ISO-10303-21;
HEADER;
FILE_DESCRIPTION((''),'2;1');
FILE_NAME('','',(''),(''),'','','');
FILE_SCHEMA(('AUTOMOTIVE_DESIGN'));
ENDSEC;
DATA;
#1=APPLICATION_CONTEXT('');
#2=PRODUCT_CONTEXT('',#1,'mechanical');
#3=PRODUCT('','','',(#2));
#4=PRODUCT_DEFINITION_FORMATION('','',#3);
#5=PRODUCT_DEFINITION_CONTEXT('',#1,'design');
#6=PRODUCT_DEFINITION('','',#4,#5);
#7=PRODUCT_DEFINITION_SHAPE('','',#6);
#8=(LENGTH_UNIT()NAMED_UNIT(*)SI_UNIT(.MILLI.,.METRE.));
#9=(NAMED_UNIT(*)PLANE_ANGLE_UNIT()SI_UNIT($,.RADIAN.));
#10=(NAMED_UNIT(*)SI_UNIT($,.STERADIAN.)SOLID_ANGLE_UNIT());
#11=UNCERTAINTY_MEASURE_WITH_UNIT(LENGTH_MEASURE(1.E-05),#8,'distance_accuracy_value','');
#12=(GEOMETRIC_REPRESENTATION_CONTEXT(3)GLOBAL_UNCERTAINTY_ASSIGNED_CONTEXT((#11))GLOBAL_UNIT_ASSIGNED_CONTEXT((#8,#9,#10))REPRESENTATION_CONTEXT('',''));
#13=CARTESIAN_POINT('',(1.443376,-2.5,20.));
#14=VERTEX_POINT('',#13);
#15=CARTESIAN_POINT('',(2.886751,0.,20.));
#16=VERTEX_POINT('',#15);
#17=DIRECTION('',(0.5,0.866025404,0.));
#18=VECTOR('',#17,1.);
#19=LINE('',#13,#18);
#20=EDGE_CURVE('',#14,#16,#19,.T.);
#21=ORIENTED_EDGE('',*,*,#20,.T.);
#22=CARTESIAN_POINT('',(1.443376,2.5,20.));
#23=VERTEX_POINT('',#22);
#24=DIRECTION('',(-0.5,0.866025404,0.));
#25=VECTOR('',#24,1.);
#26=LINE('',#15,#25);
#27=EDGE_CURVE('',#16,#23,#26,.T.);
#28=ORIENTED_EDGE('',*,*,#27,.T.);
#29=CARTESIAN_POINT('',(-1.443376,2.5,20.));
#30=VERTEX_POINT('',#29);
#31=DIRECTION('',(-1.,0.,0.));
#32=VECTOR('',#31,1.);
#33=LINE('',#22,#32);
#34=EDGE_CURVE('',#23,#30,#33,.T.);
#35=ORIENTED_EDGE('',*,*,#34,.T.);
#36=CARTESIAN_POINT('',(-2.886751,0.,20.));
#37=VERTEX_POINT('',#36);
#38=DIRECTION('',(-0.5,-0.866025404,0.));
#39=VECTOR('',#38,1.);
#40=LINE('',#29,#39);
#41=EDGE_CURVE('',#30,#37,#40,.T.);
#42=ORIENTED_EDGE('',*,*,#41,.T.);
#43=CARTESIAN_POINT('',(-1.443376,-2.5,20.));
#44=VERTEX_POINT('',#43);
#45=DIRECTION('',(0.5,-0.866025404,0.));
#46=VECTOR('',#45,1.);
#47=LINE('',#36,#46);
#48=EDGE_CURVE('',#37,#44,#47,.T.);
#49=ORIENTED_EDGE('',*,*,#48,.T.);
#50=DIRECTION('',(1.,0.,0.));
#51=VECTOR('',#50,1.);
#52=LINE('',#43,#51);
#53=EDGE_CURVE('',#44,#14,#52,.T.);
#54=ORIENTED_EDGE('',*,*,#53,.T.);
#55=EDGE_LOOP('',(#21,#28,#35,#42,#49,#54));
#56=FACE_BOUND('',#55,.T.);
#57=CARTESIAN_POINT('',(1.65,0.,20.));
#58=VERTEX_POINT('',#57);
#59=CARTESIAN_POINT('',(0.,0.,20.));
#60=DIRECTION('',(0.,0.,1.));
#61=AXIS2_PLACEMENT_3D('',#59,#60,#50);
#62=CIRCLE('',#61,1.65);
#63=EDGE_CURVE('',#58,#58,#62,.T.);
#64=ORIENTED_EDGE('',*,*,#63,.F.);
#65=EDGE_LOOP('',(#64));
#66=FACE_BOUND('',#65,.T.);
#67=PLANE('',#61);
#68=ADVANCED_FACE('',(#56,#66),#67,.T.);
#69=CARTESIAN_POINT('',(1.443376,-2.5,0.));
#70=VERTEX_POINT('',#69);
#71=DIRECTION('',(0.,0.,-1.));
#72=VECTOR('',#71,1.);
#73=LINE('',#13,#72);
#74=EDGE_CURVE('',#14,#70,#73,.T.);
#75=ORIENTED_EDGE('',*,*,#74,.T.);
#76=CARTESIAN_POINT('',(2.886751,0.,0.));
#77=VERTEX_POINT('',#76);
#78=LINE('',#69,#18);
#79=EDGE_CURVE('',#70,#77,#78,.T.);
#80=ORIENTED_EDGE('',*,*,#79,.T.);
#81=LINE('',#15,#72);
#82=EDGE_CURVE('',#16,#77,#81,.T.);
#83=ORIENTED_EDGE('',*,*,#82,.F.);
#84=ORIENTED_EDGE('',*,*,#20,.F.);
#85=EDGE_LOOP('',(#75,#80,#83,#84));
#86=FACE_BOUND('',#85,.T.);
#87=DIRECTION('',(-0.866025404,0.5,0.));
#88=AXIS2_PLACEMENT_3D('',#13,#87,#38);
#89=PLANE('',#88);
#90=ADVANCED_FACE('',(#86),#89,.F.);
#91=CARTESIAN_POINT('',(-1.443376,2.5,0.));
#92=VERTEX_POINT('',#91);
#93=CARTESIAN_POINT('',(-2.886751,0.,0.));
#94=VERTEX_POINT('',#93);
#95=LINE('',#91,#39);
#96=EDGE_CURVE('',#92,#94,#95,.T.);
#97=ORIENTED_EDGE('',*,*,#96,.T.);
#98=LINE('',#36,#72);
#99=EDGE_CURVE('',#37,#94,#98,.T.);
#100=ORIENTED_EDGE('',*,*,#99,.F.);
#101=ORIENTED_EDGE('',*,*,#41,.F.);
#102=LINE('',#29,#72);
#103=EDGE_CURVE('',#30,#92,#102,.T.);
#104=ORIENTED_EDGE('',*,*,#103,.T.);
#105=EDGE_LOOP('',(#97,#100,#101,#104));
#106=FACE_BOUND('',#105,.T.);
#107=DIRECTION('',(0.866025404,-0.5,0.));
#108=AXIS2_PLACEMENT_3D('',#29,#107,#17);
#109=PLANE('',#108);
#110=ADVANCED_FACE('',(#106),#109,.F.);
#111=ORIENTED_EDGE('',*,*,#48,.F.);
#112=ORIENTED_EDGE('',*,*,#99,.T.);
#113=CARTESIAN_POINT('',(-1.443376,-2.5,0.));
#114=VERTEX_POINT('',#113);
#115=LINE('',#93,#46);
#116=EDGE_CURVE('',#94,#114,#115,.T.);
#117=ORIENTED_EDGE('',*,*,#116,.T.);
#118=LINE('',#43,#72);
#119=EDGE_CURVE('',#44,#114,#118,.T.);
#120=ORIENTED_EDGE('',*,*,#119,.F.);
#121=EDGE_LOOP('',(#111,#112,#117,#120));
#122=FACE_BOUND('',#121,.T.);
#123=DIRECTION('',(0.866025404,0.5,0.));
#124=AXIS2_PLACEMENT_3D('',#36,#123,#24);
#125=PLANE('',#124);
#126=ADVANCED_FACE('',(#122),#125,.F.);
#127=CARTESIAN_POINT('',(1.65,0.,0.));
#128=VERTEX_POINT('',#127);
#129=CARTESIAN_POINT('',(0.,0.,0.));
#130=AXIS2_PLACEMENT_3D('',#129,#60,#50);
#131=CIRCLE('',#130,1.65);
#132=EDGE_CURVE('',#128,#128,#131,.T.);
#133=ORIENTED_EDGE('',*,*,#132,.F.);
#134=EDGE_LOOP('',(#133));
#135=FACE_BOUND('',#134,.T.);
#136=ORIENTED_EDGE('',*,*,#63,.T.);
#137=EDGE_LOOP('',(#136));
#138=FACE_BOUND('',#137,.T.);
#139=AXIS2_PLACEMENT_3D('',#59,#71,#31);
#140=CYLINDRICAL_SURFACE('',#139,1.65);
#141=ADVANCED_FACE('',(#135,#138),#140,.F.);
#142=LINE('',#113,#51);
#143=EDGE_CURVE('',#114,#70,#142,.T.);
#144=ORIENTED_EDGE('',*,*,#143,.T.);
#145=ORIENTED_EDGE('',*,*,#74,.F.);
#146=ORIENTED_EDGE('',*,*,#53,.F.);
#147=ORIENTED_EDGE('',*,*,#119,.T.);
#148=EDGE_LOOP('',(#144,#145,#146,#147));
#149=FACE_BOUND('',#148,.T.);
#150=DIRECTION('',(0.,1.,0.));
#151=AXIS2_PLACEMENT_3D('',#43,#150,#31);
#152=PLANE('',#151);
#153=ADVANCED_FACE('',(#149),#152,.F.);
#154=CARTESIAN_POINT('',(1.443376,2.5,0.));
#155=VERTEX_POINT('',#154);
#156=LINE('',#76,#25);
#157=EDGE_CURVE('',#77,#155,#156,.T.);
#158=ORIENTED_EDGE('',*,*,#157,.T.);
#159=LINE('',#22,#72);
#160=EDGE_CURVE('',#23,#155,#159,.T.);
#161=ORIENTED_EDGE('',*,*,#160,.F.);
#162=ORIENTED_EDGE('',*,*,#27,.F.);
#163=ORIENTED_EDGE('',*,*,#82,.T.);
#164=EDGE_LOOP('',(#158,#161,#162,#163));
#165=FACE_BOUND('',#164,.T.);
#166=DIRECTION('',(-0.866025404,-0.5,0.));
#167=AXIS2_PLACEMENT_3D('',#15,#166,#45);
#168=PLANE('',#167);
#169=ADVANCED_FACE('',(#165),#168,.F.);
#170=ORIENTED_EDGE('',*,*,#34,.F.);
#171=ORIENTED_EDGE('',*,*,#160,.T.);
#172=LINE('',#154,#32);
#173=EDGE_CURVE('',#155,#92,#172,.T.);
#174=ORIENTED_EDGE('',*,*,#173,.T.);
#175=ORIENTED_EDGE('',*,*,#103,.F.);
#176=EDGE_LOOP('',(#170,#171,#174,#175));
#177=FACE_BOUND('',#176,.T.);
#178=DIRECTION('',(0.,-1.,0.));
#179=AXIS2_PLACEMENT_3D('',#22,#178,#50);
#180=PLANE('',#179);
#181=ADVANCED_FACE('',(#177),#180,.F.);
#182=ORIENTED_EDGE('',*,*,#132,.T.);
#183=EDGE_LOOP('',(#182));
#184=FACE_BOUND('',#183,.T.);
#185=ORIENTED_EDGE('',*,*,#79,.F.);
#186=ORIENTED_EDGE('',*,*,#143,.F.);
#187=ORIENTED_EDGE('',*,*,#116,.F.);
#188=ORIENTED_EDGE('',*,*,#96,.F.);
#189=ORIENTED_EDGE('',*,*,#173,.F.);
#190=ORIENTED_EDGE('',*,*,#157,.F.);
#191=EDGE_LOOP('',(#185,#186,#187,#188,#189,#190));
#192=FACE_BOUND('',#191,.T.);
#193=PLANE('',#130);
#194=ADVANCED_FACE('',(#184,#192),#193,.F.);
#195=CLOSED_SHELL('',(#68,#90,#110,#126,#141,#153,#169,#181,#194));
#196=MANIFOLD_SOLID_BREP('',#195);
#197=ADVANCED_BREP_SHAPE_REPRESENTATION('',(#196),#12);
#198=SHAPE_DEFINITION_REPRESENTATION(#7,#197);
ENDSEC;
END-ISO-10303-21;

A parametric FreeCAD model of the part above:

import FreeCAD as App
import Part
import Sketcher
from FreeCAD import Vector
Q = App.Units.Quantity

doc = App.newDocument("Part")
body = doc.addObject("PartDesign::Body", "Body")

# Sketch on XY plane
sketch1 = doc.addObject("Sketcher::SketchObject", "Sketch")
body.addObject(sketch1)
sketch1.AttachmentSupport = (doc.XY_Plane, [""])
sketch1.MapMode = "FlatFace"
sketch1.addGeometry([
    Part.LineSegment(Vector(2.9, 0, 0), Vector(1.4, 2.5, 0)),  # 0
    Part.LineSegment(Vector(1.4, 2.5, 0), Vector(-1.4, 2.5, 0)),  # 1
    Part.LineSegment(Vector(-1.4, 2.5, 0), Vector(-2.9, 0, 0)),  # 2
    Part.LineSegment(Vector(-2.9, 0, 0), Vector(-1.4, -2.5, 0)),  # 3
    Part.LineSegment(Vector(-1.4, -2.5, 0), Vector(1.4, -2.5, 0)),  # 4
    Part.LineSegment(Vector(1.4, -2.5, 0), Vector(2.9, 0, 0)),  # 5
    Part.Circle(Vector(0, 0, 0), Vector(0, 0, 1), 1.6),  # 6
], False)
sketch1.addConstraint([
    Sketcher.Constraint("Coincident", 0, 2, 1, 1),
    Sketcher.Constraint("Coincident", 1, 2, 2, 1),
    Sketcher.Constraint("Coincident", 2, 2, 3, 1),
    Sketcher.Constraint("Coincident", 3, 2, 4, 1),
    Sketcher.Constraint("Coincident", 4, 2, 5, 1),
    Sketcher.Constraint("Coincident", 5, 2, 0, 1),
    Sketcher.Constraint("Horizontal", 1),
    Sketcher.Constraint("Horizontal", 4),
    Sketcher.Constraint("Coincident", 6, 3, -1, 1),
    Sketcher.Constraint("Symmetric", 0, 2, 3, 2, -1, 1),
    Sketcher.Constraint("Symmetric", 2, 2, 5, 2, -1, 1),
    Sketcher.Constraint("PointOnObject", 2, 2, -1),
    Sketcher.Constraint("Parallel", 2, 5),
    Sketcher.Constraint("Vertical", 1, 2, 3, 2),
    Sketcher.Constraint("Diameter", 6, 3.3),
    Sketcher.Constraint("Angle", 0, Q("120 deg")),
    Sketcher.Constraint("DistanceY", 3, 2, 1, 2, 5.0),
    Sketcher.Constraint("DistanceX", 1, 2, 1, 1, 2.886751),
])
pad1 = doc.addObject("PartDesign::Pad", "Pad")
body.addObject(pad1)
pad1.Profile = sketch1
pad1.Length = 20

doc.recompute()
